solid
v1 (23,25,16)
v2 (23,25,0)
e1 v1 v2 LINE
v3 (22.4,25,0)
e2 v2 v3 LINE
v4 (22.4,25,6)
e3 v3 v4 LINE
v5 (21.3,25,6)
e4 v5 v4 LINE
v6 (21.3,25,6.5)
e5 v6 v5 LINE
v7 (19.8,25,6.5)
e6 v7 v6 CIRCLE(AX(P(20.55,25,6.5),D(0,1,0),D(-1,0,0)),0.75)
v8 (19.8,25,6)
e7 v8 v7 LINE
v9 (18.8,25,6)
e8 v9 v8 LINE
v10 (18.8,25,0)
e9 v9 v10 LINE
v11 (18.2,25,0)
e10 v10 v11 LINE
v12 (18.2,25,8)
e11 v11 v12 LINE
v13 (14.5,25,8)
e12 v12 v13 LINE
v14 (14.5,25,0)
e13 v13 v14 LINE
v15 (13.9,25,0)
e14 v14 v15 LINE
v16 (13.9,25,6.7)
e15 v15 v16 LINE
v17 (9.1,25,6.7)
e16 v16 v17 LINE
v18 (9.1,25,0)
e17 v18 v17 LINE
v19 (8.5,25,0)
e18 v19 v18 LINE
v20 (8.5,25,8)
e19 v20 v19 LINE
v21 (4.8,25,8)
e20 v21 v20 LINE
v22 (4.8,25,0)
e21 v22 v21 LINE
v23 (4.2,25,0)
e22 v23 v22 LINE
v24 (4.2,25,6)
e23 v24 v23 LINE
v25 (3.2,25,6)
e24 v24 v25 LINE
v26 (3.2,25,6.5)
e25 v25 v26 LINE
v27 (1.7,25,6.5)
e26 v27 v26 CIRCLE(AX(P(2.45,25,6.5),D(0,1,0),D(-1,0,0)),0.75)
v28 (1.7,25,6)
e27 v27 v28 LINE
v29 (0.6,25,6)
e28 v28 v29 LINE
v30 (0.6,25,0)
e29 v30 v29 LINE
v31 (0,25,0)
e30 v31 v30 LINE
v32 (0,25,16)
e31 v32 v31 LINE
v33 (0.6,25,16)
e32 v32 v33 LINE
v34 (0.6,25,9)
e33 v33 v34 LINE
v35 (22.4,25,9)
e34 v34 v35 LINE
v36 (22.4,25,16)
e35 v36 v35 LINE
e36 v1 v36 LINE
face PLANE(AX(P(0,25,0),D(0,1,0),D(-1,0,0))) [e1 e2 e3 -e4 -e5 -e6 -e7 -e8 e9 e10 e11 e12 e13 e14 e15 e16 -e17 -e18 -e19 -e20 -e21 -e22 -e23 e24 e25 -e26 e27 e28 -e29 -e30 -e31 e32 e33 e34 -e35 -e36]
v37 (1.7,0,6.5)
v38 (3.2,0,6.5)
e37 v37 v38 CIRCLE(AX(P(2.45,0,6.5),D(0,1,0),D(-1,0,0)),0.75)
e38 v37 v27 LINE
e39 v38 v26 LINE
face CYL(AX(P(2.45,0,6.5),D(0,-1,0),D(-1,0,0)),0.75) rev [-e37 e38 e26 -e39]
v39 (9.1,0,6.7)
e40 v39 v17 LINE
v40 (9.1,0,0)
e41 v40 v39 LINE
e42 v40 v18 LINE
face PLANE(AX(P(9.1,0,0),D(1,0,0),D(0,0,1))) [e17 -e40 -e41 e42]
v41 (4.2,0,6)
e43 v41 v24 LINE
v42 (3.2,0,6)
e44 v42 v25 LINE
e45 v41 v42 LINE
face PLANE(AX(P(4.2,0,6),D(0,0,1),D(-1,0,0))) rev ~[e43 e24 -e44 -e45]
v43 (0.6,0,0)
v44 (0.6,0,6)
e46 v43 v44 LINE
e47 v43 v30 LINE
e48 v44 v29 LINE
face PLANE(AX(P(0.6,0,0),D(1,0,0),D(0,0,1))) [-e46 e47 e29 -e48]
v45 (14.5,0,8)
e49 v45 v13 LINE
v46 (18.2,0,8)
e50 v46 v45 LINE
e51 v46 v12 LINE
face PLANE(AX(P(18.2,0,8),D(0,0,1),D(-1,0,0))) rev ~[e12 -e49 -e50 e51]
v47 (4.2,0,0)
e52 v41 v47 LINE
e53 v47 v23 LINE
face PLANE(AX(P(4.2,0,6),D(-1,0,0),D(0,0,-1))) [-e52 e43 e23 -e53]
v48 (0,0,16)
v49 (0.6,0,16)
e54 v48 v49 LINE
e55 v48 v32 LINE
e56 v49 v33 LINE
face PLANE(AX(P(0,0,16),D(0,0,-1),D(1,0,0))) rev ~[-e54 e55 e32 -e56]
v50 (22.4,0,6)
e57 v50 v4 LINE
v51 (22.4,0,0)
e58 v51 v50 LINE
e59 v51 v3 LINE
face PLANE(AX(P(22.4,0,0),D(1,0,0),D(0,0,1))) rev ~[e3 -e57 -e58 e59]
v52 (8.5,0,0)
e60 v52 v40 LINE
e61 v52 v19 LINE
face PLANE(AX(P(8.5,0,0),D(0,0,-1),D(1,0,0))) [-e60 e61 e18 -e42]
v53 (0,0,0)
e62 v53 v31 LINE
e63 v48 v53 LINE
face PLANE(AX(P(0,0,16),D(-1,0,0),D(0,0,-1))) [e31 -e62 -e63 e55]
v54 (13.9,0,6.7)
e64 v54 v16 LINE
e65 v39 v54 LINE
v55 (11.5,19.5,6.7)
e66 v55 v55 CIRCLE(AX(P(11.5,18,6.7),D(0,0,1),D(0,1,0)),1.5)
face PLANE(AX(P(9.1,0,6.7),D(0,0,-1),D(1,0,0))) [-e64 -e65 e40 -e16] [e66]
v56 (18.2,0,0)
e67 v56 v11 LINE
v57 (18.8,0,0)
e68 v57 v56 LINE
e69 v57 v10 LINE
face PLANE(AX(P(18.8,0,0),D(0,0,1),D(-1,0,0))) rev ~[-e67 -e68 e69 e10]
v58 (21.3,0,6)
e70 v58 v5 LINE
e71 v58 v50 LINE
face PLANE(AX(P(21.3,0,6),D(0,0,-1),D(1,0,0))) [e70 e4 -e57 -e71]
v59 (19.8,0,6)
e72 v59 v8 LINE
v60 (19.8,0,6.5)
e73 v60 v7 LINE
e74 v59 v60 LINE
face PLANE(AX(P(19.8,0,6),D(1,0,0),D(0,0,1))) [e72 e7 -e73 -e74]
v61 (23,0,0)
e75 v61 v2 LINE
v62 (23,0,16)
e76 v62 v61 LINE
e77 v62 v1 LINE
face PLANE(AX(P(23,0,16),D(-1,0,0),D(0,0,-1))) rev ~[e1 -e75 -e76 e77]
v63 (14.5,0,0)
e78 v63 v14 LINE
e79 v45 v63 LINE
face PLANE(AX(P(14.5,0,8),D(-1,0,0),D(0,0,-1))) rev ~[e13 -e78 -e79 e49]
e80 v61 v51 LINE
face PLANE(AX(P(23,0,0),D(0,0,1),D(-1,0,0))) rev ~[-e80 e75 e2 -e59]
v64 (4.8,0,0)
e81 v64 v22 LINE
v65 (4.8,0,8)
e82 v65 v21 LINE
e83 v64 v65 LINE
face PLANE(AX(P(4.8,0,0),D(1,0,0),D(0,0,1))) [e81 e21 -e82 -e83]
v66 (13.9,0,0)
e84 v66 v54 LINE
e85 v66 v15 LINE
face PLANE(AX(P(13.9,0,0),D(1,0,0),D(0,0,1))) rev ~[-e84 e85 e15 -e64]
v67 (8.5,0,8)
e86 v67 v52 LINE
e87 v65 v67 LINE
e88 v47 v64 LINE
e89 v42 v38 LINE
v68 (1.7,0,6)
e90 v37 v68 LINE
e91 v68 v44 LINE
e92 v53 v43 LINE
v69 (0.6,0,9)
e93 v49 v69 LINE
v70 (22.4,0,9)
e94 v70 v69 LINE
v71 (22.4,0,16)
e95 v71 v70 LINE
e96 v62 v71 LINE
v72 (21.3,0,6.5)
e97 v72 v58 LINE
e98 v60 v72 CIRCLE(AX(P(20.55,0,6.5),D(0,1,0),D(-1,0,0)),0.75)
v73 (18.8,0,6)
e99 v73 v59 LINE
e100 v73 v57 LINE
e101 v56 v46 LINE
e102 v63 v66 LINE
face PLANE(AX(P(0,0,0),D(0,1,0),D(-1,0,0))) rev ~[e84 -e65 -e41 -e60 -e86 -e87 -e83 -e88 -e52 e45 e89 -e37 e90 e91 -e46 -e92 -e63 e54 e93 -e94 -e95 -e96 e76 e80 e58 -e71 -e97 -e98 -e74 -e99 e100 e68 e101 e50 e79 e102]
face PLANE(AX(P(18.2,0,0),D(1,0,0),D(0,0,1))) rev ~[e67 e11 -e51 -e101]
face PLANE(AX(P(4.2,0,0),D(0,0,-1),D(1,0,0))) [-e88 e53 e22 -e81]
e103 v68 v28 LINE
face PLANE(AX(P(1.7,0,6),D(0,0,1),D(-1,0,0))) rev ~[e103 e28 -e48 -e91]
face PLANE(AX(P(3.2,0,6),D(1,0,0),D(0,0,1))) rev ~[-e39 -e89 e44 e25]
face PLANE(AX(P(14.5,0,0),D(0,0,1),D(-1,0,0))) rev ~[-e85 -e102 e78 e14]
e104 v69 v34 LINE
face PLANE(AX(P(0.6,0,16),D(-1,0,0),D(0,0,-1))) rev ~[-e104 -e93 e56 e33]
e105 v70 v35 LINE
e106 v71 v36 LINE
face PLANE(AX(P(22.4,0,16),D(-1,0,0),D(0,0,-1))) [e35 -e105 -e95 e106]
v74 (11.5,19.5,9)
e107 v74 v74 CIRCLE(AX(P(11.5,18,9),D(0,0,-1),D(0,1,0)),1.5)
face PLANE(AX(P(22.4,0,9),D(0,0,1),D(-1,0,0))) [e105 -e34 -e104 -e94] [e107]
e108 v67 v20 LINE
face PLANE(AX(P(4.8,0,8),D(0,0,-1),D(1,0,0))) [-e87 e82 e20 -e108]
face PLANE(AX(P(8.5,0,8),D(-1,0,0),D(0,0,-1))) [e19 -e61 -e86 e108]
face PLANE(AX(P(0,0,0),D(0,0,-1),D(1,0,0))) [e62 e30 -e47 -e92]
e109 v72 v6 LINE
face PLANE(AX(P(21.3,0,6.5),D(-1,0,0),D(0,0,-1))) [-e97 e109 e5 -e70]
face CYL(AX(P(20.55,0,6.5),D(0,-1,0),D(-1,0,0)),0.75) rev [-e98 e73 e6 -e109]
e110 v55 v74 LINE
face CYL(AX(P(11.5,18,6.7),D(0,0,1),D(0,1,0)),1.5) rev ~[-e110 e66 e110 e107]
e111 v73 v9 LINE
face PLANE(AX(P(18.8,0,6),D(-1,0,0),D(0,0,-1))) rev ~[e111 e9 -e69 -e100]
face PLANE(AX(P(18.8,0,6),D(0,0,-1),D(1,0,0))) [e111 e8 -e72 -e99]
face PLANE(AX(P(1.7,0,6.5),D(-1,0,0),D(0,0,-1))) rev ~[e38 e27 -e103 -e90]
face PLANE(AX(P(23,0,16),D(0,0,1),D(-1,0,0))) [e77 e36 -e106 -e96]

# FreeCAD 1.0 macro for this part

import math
import FreeCAD as App
import Part
import Sketcher

doc = App.newDocument("Part")
params = doc.addObject("Spreadsheet::Sheet", "Params")
for row, (alias, value) in enumerate([
    ("sketch1_width", "1 mm"),
    ("sketch1_height", "16 mm"),
    ("sketch1_height2", "7 mm"),
    ("sketch1_height3", "6 mm"),
    ("sketch1_height4", "8 mm"),
    ("pad1_length", "25 mm"),
    ("sketch2_diameter", "3 mm"),
    ("hole_diameter", "3 mm"),
], start=1):
    params.set(f"A{row}", alias)
    params.set(f"B{row}", "=" + value)
    params.setAlias(f"B{row}", alias)

body = doc.addObject("PartDesign::Body", "Body")

# Sketch on XZ plane
sketch1 = doc.addObject("Sketcher::SketchObject", "Sketch")
body.addObject(sketch1)
sketch1.AttachmentSupport = (doc.XZ_Plane, [""])
sketch1.MapMode = "FlatFace"
sketch1.addGeometry([
    Part.LineSegment(App.Vector(0, 0, 0), App.Vector(0, 16, 0)),  # 0
    Part.LineSegment(App.Vector(0, 16, 0), App.Vector(0.6, 16, 0)),  # 1
    Part.LineSegment(App.Vector(0.6, 16, 0), App.Vector(0.6, 9, 0)),  # 2
    Part.LineSegment(App.Vector(0.6, 9, 0), App.Vector(22.4, 9, 0)),  # 3
    Part.LineSegment(App.Vector(22.4, 9, 0), App.Vector(22.4, 16, 0)),  # 4
    Part.LineSegment(App.Vector(22.4, 16, 0), App.Vector(23, 16, 0)),  # 5
    Part.LineSegment(App.Vector(23, 16, 0), App.Vector(23, 0, 0)),  # 6
    Part.LineSegment(App.Vector(23, 0, 0), App.Vector(22.4, 0, 0)),  # 7
    Part.LineSegment(App.Vector(22.4, 0, 0), App.Vector(22.4, 6, 0)),  # 8
    Part.LineSegment(App.Vector(22.4, 6, 0), App.Vector(21.3, 6, 0)),  # 9
    Part.LineSegment(App.Vector(21.3, 6, 0), App.Vector(21.3, 6.5, 0)),  # 10
    Part.ArcOfCircle(Part.Circle(App.Vector(20.55, 6.5, 0), App.Vector(0, 0, 1), 0.75), math.radians(0), math.radians(180)),  # 11
    Part.LineSegment(App.Vector(19.8, 6.5, 0), App.Vector(19.8, 6, 0)),  # 12
    Part.LineSegment(App.Vector(19.8, 6, 0), App.Vector(18.8, 6, 0)),  # 13
    Part.LineSegment(App.Vector(18.8, 6, 0), App.Vector(18.8, 0, 0)),  # 14
    Part.LineSegment(App.Vector(18.8, 0, 0), App.Vector(18.2, 0, 0)),  # 15
    Part.LineSegment(App.Vector(18.2, 0, 0), App.Vector(18.2, 8, 0)),  # 16
    Part.LineSegment(App.Vector(18.2, 8, 0), App.Vector(14.5, 8, 0)),  # 17
    Part.LineSegment(App.Vector(14.5, 8, 0), App.Vector(14.5, 0, 0)),  # 18
    Part.LineSegment(App.Vector(14.5, 0, 0), App.Vector(13.9, 0, 0)),  # 19
    Part.LineSegment(App.Vector(13.9, 0, 0), App.Vector(13.9, 6.7, 0)),  # 20
    Part.LineSegment(App.Vector(13.9, 6.7, 0), App.Vector(9.1, 6.7, 0)),  # 21
    Part.LineSegment(App.Vector(9.1, 6.7, 0), App.Vector(9.1, 0, 0)),  # 22
    Part.LineSegment(App.Vector(9.1, 0, 0), App.Vector(8.5, 0, 0)),  # 23
    Part.LineSegment(App.Vector(8.5, 0, 0), App.Vector(8.5, 8, 0)),  # 24
    Part.LineSegment(App.Vector(8.5, 8, 0), App.Vector(4.8, 8, 0)),  # 25
    Part.LineSegment(App.Vector(4.8, 8, 0), App.Vector(4.8, 0, 0)),  # 26
    Part.LineSegment(App.Vector(4.8, 0, 0), App.Vector(4.2, 0, 0)),  # 27
    Part.LineSegment(App.Vector(4.2, 0, 0), App.Vector(4.2, 6, 0)),  # 28
    Part.LineSegment(App.Vector(4.2, 6, 0), App.Vector(3.2, 6, 0)),  # 29
    Part.LineSegment(App.Vector(3.2, 6, 0), App.Vector(3.2, 6.5, 0)),  # 30
    Part.ArcOfCircle(Part.Circle(App.Vector(2.45, 6.5, 0), App.Vector(0, 0, 1), 0.75), math.radians(0), math.radians(180)),  # 31
    Part.LineSegment(App.Vector(1.7, 6.5, 0), App.Vector(1.7, 6, 0)),  # 32
    Part.LineSegment(App.Vector(1.7, 6, 0), App.Vector(0.6, 6, 0)),  # 33
    Part.LineSegment(App.Vector(0.6, 6, 0), App.Vector(0.6, 0, 0)),  # 34
    Part.LineSegment(App.Vector(0.6, 0, 0), App.Vector(0, 0, 0)),  # 35
], False)
sketch1.addConstraint([
    Sketcher.Constraint("Coincident", 0, 2, 1, 1),
    Sketcher.Constraint("Coincident", 1, 2, 2, 1),
    Sketcher.Constraint("Coincident", 2, 2, 3, 1),
    Sketcher.Constraint("Coincident", 3, 2, 4, 1),
    Sketcher.Constraint("Coincident", 4, 2, 5, 1),
    Sketcher.Constraint("Coincident", 5, 2, 6, 1),
    Sketcher.Constraint("Coincident", 6, 2, 7, 1),
    Sketcher.Constraint("Coincident", 7, 2, 8, 1),
    Sketcher.Constraint("Coincident", 8, 2, 9, 1),
    Sketcher.Constraint("Coincident", 9, 2, 10, 1),
    Sketcher.Constraint("Tangent", 10, 2, 11, 1),
    Sketcher.Constraint("Tangent", 11, 2, 12, 1),
    Sketcher.Constraint("Coincident", 12, 2, 13, 1),
    Sketcher.Constraint("Coincident", 13, 2, 14, 1),
    Sketcher.Constraint("Coincident", 14, 2, 15, 1),
    Sketcher.Constraint("Coincident", 15, 2, 16, 1),
    Sketcher.Constraint("Coincident", 16, 2, 17, 1),
    Sketcher.Constraint("Coincident", 17, 2, 18, 1),
    Sketcher.Constraint("Coincident", 18, 2, 19, 1),
    Sketcher.Constraint("Coincident", 19, 2, 20, 1),
    Sketcher.Constraint("Coincident", 20, 2, 21, 1),
    Sketcher.Constraint("Coincident", 21, 2, 22, 1),
    Sketcher.Constraint("Coincident", 22, 2, 23, 1),
    Sketcher.Constraint("Coincident", 23, 2, 24, 1),
    Sketcher.Constraint("Coincident", 24, 2, 25, 1),
    Sketcher.Constraint("Coincident", 25, 2, 26, 1),
    Sketcher.Constraint("Coincident", 26, 2, 27, 1),
    Sketcher.Constraint("Coincident", 27, 2, 28, 1),
    Sketcher.Constraint("Coincident", 28, 2, 29, 1),
    Sketcher.Constraint("Coincident", 29, 2, 30, 1),
    Sketcher.Constraint("Tangent", 30, 2, 31, 1),
    Sketcher.Constraint("Tangent", 31, 2, 32, 1),
    Sketcher.Constraint("Coincident", 32, 2, 33, 1),
    Sketcher.Constraint("Coincident", 33, 2, 34, 1),
    Sketcher.Constraint("Coincident", 34, 2, 35, 1),
    Sketcher.Constraint("Coincident", 35, 2, 0, 1),
    Sketcher.Constraint("Vertical", 0),
    Sketcher.Constraint("Horizontal", 1),
    Sketcher.Constraint("Vertical", 2),
    Sketcher.Constraint("Horizontal", 3),
    Sketcher.Constraint("Vertical", 4),
    Sketcher.Constraint("Horizontal", 5),
    Sketcher.Constraint("Vertical", 6),
    Sketcher.Constraint("Horizontal", 7),
    Sketcher.Constraint("Vertical", 8),
    Sketcher.Constraint("Horizontal", 9),
    Sketcher.Constraint("Vertical", 10),
    Sketcher.Constraint("Vertical", 12),
    Sketcher.Constraint("Horizontal", 13),
    Sketcher.Constraint("Vertical", 14),
    Sketcher.Constraint("Horizontal", 15),
    Sketcher.Constraint("Vertical", 16),
    Sketcher.Constraint("Horizontal", 17),
    Sketcher.Constraint("Vertical", 18),
    Sketcher.Constraint("Horizontal", 19),
    Sketcher.Constraint("Vertical", 20),
    Sketcher.Constraint("Horizontal", 21),
    Sketcher.Constraint("Vertical", 22),
    Sketcher.Constraint("Horizontal", 23),
    Sketcher.Constraint("Vertical", 24),
    Sketcher.Constraint("Horizontal", 25),
    Sketcher.Constraint("Vertical", 26),
    Sketcher.Constraint("Horizontal", 27),
    Sketcher.Constraint("Vertical", 28),
    Sketcher.Constraint("Horizontal", 29),
    Sketcher.Constraint("Vertical", 30),
    Sketcher.Constraint("Vertical", 32),
    Sketcher.Constraint("Horizontal", 33),
    Sketcher.Constraint("Vertical", 34),
    Sketcher.Constraint("Horizontal", 35),
    Sketcher.Constraint("Coincident", 35, 2, -1, 1),
    Sketcher.Constraint("Equal", 11, 31),
    Sketcher.Constraint("PointOnObject", 6, 2, -1),
    Sketcher.Constraint("PointOnObject", 14, 2, -1),
    Sketcher.Constraint("PointOnObject", 18, 2, -1),
    Sketcher.Constraint("PointOnObject", 22, 2, -1),
    Sketcher.Constraint("PointOnObject", 26, 2, -1),
    Sketcher.Constraint("Horizontal", 11, 3, 31, 3),
    Sketcher.Constraint("Horizontal", 1, 2, 4, 2),
    Sketcher.Constraint("Horizontal", 9, 2, 12, 2),
    Sketcher.Constraint("Horizontal", 17, 2, 24, 2),
    Sketcher.Constraint("Horizontal", 13, 2, 28, 2),
    Sketcher.Constraint("Horizontal", 29, 2, 32, 2),
    Sketcher.Constraint("Vertical", 4, 2, 7, 2),
    Sketcher.Constraint("Vertical", 2, 2, 33, 2),
    Sketcher.Constraint("Equal", 1, 5),
    Sketcher.Constraint("Equal", 7, 15),
    Sketcher.Constraint("Equal", 15, 19),
    Sketcher.Constraint("Equal", 19, 23),
    Sketcher.Constraint("Equal", 17, 25),
    Sketcher.Constraint("Equal", 23, 27),
    Sketcher.Constraint("Equal", 13, 29),
    Sketcher.Constraint("Equal", 9, 33),
    Sketcher.Constraint("DistanceX", 13, 2, 13, 1, 1.0),
    Sketcher.Constraint("DistanceY", 0, 1, 0, 2, 16.0),
    Sketcher.Constraint("DistanceY", 2, 2, 2, 1, 7.0),
    Sketcher.Constraint("DistanceY", 8, 1, 8, 2, 6.0),
    Sketcher.Constraint("DistanceY", 16, 1, 16, 2, 8.0),
    Sketcher.Constraint("Radius", 11, 0.75),
    Sketcher.Constraint("DistanceX", 1, 1, 1, 2, 0.6),
    Sketcher.Constraint("DistanceX", 9, 2, 9, 1, 1.1),
    Sketcher.Constraint("DistanceX", 17, 2, 17, 1, 3.7),
    Sketcher.Constraint("DistanceY", 10, 1, 10, 2, 0.5),
    Sketcher.Constraint("DistanceY", 20, 1, 20, 2, 6.7),
    Sketcher.Constraint("DistanceX", -1, 1, 5, 2, 23.0),
])
sketch1.setExpression("Constraints[93]", "Params.sketch1_width")
sketch1.setExpression("Constraints[94]", "Params.sketch1_height")
sketch1.setExpression("Constraints[95]", "Params.sketch1_height2")
sketch1.setExpression("Constraints[96]", "Params.sketch1_height3")
sketch1.setExpression("Constraints[97]", "Params.sketch1_height4")
pad1 = doc.addObject("PartDesign::Pad", "Pad")
body.addObject(pad1)
pad1.Profile = sketch1
pad1.setExpression("Length", "Params.pad1_length")
pad1.Reversed = True

# Sketch on XY plane
sketch2 = doc.addObject("Sketcher::SketchObject", "Sketch001")
body.addObject(sketch2)
sketch2.AttachmentSupport = (doc.XY_Plane, [""])
sketch2.MapMode = "FlatFace"
sketch2.AttachmentOffset = App.Placement(App.Vector(0, 0, 6.7), App.Rotation())
sketch2.addGeometry(Part.Circle(App.Vector(11.5, 18, 0), App.Vector(0, 0, 1), 1.5), False)
sketch2.addConstraint([
    Sketcher.Constraint("Diameter", 0, 3.0),
    Sketcher.Constraint("DistanceY", -1, 1, 0, 3, 18.0),
    Sketcher.Constraint("DistanceX", -1, 1, 0, 3, 11.5),
])
sketch2.setExpression("Constraints[0]", "Params.sketch2_diameter")
doc.recompute()
hole = doc.addObject("PartDesign::Hole", "Hole")
body.addObject(hole)
hole.Profile = sketch2
hole.ThreadType = "None"
hole.setExpression("Diameter", "Params.hole_diameter")
hole.DepthType = "ThroughAll"
hole.Reversed = True

doc.recompute()
